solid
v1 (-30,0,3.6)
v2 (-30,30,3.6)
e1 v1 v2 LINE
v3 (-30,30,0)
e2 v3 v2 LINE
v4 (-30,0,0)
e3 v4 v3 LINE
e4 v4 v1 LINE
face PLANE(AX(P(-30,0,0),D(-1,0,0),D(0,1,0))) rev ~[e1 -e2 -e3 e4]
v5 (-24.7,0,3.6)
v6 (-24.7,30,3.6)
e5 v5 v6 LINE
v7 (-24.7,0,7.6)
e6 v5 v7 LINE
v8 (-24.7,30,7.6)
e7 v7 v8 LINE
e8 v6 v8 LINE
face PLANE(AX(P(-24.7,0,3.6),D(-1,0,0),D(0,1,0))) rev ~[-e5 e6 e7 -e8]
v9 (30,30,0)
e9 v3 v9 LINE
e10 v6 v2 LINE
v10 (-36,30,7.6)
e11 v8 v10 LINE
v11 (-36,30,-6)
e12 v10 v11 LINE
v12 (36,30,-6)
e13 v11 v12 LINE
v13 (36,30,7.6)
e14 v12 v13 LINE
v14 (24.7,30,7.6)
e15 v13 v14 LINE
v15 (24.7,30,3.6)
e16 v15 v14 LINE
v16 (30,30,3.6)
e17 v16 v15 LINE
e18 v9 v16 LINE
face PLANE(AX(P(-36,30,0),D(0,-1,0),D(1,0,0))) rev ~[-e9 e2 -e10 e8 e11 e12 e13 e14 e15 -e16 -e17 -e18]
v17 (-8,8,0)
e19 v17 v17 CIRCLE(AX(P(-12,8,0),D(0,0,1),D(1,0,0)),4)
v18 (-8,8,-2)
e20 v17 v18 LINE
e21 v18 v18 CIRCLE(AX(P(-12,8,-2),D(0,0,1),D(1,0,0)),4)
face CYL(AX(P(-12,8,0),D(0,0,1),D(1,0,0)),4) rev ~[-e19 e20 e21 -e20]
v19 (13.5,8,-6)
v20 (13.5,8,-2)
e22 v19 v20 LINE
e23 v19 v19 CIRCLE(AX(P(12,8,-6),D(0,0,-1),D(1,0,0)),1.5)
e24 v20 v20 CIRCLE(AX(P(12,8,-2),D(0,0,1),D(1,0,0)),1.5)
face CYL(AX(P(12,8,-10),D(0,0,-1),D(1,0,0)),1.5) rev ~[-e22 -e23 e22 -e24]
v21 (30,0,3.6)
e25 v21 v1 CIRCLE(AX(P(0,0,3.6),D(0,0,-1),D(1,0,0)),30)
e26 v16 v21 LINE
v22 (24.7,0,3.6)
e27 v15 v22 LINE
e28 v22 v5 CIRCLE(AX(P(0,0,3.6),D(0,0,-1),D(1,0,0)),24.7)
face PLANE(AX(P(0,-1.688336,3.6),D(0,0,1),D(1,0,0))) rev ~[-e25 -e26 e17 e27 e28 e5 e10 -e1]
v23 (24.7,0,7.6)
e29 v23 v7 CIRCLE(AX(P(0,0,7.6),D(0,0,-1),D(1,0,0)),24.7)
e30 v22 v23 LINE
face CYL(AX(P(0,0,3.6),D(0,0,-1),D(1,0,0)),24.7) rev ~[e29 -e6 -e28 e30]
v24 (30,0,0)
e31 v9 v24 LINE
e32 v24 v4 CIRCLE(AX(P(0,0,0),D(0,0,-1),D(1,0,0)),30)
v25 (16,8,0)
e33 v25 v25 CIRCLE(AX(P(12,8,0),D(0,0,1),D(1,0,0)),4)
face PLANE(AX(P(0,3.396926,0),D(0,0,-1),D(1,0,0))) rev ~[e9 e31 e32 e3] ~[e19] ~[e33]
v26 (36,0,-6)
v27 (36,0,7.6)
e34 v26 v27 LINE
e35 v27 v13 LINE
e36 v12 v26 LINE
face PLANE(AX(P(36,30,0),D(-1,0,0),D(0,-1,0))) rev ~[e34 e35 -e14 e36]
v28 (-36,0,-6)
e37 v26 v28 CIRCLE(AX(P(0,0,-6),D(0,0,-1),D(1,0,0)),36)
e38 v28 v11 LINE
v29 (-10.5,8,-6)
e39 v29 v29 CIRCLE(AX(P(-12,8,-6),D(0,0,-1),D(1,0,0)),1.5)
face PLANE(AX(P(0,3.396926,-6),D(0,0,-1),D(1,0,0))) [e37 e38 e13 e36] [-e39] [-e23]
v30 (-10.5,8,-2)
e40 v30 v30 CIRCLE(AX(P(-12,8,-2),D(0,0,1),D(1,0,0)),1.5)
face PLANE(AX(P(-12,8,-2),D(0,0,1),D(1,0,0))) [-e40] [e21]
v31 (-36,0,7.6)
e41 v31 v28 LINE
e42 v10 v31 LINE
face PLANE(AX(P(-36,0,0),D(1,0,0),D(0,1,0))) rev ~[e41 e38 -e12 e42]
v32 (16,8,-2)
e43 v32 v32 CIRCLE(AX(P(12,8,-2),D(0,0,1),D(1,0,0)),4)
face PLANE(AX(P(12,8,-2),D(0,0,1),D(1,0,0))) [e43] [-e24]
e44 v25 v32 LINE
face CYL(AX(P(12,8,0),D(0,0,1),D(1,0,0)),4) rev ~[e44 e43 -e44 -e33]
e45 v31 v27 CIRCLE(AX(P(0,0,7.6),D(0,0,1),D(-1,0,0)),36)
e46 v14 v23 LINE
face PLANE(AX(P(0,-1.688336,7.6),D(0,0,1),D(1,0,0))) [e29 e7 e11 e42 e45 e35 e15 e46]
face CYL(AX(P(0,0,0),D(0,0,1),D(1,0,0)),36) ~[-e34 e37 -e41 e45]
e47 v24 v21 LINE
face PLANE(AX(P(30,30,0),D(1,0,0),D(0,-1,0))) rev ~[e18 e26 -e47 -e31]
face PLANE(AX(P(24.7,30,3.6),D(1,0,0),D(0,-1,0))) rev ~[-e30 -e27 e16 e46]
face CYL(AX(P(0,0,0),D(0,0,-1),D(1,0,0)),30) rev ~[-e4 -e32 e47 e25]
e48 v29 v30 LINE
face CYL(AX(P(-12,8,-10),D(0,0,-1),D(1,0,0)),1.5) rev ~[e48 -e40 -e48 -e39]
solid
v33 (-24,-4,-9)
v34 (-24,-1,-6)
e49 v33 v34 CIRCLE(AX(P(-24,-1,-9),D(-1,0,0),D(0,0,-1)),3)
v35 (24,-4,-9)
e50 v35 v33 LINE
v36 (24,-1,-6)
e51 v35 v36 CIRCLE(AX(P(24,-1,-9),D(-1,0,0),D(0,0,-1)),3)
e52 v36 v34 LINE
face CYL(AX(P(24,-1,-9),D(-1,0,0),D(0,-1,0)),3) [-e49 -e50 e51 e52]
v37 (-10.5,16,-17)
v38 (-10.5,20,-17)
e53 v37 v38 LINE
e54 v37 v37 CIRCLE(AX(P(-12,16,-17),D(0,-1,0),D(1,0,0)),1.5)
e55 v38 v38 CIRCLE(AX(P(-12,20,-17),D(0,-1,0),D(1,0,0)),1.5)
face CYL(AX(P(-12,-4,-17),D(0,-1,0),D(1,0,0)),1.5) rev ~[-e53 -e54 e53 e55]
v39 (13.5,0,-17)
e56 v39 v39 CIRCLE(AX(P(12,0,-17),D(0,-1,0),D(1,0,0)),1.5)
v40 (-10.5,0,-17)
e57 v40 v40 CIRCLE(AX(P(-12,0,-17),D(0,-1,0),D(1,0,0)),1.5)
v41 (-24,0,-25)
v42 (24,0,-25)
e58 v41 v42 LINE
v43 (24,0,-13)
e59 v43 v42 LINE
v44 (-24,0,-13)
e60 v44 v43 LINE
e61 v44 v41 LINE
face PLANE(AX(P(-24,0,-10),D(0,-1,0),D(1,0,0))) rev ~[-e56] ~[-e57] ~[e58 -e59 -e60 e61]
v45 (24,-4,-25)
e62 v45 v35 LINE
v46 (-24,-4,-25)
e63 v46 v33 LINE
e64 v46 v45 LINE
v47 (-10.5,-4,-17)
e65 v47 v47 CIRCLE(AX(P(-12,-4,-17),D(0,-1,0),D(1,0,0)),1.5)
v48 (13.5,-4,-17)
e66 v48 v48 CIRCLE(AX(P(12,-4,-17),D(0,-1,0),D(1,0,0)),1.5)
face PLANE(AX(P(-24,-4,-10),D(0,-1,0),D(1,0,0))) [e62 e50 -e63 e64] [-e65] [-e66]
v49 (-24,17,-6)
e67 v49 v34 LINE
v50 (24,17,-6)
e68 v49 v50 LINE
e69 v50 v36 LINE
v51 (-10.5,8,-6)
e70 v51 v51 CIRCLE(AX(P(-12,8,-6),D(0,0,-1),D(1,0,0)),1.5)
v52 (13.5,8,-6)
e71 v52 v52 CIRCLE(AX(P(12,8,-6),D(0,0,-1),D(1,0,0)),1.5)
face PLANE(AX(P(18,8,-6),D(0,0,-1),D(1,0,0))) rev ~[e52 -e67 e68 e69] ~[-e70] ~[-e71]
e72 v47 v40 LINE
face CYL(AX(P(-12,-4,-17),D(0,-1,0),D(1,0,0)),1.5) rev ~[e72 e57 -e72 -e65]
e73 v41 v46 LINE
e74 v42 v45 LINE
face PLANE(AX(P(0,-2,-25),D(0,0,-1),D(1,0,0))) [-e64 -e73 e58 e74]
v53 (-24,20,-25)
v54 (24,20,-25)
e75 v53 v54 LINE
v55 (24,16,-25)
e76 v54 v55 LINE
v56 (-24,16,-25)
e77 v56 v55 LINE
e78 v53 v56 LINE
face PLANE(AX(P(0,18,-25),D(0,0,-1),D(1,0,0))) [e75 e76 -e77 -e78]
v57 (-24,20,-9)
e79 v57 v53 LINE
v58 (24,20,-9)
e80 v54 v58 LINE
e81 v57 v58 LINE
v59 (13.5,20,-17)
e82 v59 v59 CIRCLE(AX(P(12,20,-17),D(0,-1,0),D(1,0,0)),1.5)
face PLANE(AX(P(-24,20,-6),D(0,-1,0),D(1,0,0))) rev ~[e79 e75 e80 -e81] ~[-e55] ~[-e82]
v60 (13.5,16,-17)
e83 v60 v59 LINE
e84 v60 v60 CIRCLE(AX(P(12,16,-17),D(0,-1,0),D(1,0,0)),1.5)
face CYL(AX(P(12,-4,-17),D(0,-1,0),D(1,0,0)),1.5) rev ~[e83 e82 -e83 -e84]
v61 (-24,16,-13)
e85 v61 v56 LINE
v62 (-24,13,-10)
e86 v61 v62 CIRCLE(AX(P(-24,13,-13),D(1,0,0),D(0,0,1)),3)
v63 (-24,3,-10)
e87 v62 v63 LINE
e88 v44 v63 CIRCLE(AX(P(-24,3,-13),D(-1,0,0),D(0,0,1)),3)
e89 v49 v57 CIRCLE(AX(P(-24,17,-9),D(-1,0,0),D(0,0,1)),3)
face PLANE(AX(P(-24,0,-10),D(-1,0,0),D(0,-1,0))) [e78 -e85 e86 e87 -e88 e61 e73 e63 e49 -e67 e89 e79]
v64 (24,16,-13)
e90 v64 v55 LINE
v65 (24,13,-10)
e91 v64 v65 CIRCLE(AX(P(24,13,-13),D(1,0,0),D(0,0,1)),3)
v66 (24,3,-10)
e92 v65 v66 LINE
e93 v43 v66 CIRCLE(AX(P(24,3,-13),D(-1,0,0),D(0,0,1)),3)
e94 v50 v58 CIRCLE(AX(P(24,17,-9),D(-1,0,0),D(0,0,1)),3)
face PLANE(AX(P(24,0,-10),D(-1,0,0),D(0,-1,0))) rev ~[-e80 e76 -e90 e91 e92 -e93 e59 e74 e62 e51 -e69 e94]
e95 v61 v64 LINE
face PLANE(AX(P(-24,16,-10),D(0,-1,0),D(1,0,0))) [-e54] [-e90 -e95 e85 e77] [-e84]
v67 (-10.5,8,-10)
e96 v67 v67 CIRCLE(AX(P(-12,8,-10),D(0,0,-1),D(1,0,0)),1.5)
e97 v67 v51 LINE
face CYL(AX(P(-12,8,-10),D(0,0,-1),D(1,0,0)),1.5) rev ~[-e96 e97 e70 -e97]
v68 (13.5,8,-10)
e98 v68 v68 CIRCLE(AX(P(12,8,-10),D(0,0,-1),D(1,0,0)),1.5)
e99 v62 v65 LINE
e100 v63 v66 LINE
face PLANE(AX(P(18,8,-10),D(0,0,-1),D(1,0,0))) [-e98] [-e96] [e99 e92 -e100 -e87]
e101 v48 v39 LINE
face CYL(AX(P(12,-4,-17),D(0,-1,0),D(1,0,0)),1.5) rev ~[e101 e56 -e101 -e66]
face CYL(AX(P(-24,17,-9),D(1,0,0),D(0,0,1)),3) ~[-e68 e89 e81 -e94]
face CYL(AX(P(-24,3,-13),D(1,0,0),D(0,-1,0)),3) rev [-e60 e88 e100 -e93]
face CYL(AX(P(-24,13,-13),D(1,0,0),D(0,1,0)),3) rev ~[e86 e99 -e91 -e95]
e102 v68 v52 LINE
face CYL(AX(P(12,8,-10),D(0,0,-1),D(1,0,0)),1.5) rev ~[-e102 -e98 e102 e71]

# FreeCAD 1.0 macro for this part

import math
import FreeCAD as App
import Part
import Sketcher
from FreeCAD import Vector


def edges_at(feature, points):
    """Names of the edges that pass closest to the given points."""
    edges = feature.Shape.Edges
    near = lambda p: min(range(len(edges)), key=lambda i: edges[i].distToShape(Part.Vertex(*p))[0])
    return sorted({f"Edge{near(p) + 1}" for p in points})

doc = App.newDocument("Part")
body = doc.addObject("PartDesign::Body", "Body")

sketch1 = body.newObject("Sketcher::SketchObject", "Sketch")
sketch1.AttachmentSupport = (doc.getObject("XY_Plane"), [""])
sketch1.MapMode = "FlatFace"
sketch1.addGeometry([
    Part.ArcOfCircle(Part.Circle(Vector(0, 0, 0), Vector(0, 0, 1), 30), math.radians(180), math.radians(360)),
    Part.LineSegment(Vector(-30, 0, 0), Vector(-30, 30, 0)),
    Part.LineSegment(Vector(-30, 30, 0), Vector(-36, 30, 0)),
    Part.LineSegment(Vector(-36, 30, 0), Vector(-36, 0, 0)),
    Part.ArcOfCircle(Part.Circle(Vector(0, 0, 0), Vector(0, 0, 1), 36), math.radians(180), math.radians(360)),
    Part.LineSegment(Vector(36, 0, 0), Vector(36, 30, 0)),
    Part.LineSegment(Vector(36, 30, 0), Vector(30, 30, 0)),
    Part.LineSegment(Vector(30, 30, 0), Vector(30, 0, 0)),
], False)
sketch1.addConstraint([
    Sketcher.Constraint("Tangent", 0, 1, 1, 1),
    Sketcher.Constraint("Coincident", 1, 2, 2, 1),
    Sketcher.Constraint("Coincident", 2, 2, 3, 1),
    Sketcher.Constraint("Tangent", 3, 2, 4, 1),
    Sketcher.Constraint("Tangent", 4, 2, 5, 1),
    Sketcher.Constraint("Coincident", 5, 2, 6, 1),
    Sketcher.Constraint("Coincident", 6, 2, 7, 1),
    Sketcher.Constraint("Tangent", 7, 2, 0, 2),
    Sketcher.Constraint("Vertical", 1),
    Sketcher.Constraint("Horizontal", 2),
    Sketcher.Constraint("Vertical", 3),
    Sketcher.Constraint("Vertical", 5),
    Sketcher.Constraint("Horizontal", 6),
    Sketcher.Constraint("Vertical", 7),
    Sketcher.Constraint("Coincident", 0, 3, -1, 1),
    Sketcher.Constraint("Coincident", 4, 3, -1, 1),
    Sketcher.Constraint("Horizontal", 2, 2, 5, 2),
    Sketcher.Constraint("Radius", 0, 30.0),
    Sketcher.Constraint("Radius", 4, 36.0),
    Sketcher.Constraint("DistanceY", 1, 1, 1, 2, 30.0),
])
pad1 = body.newObject("PartDesign::Pad", "Pad")
pad1.Profile = sketch1
pad1.Length = 3.6

sketch2 = body.newObject("Sketcher::SketchObject", "Sketch001")
sketch2.AttachmentSupport = (doc.getObject("XY_Plane"), [""])
sketch2.MapMode = "FlatFace"
sketch2.AttachmentOffset = App.Placement(Vector(0, 0, 3.6), App.Rotation())
sketch2.addGeometry([
    Part.LineSegment(Vector(25, 30, 0), Vector(25, 0, 0)),
    Part.ArcOfCircle(Part.Circle(Vector(0, 0, 0), Vector(0, 0, 1), 25), math.radians(180), math.radians(360)),
    Part.LineSegment(Vector(-25, 0, 0), Vector(-25, 30, 0)),
    Part.LineSegment(Vector(-25, 30, 0), Vector(-36, 30, 0)),
    Part.LineSegment(Vector(-36, 30, 0), Vector(-36, 0, 0)),
    Part.ArcOfCircle(Part.Circle(Vector(0, 0, 0), Vector(0, 0, 1), 36), math.radians(180), math.radians(360)),
    Part.LineSegment(Vector(36, 0, 0), Vector(36, 30, 0)),
    Part.LineSegment(Vector(36, 30, 0), Vector(25, 30, 0)),
], False)
sketch2.addConstraint([
    Sketcher.Constraint("Tangent", 0, 2, 1, 2),
    Sketcher.Constraint("Tangent", 1, 1, 2, 1),
    Sketcher.Constraint("Coincident", 2, 2, 3, 1),
    Sketcher.Constraint("Coincident", 3, 2, 4, 1),
    Sketcher.Constraint("Tangent", 4, 2, 5, 1),
    Sketcher.Constraint("Tangent", 5, 2, 6, 1),
    Sketcher.Constraint("Coincident", 6, 2, 7, 1),
    Sketcher.Constraint("Coincident", 7, 2, 0, 1),
    Sketcher.Constraint("Vertical", 0),
    Sketcher.Constraint("Vertical", 2),
    Sketcher.Constraint("Horizontal", 3),
    Sketcher.Constraint("Vertical", 4),
    Sketcher.Constraint("Vertical", 6),
    Sketcher.Constraint("Horizontal", 7),
    Sketcher.Constraint("Coincident", 1, 3, -1, 1),
    Sketcher.Constraint("Coincident", 5, 3, -1, 1),
    Sketcher.Constraint("Horizontal", 3, 2, 6, 2),
    Sketcher.Constraint("Radius", 5, 36.0),
    Sketcher.Constraint("Radius", 1, 24.7),
    Sketcher.Constraint("DistanceY", 0, 2, 0, 1, 30.0),
])
pad2 = body.newObject("PartDesign::Pad", "Pad001")
pad2.Profile = sketch2
pad2.Length = 4

sketch3 = body.newObject("Sketcher::SketchObject", "Sketch002")
sketch3.AttachmentSupport = (doc.getObject("XY_Plane"), [""])
sketch3.MapMode = "FlatFace"
sketch3.addGeometry([
    Part.ArcOfCircle(Part.Circle(Vector(0, 0, 0), Vector(0, 0, 1), 36), math.radians(180), math.radians(360)),
    Part.LineSegment(Vector(-36, 0, 0), Vector(-36, 30, 0)),
    Part.LineSegment(Vector(-36, 30, 0), Vector(36, 30, 0)),
    Part.LineSegment(Vector(36, 30, 0), Vector(36, 0, 0)),
], False)
sketch3.addConstraint([
    Sketcher.Constraint("Tangent", 0, 1, 1, 1),
    Sketcher.Constraint("Coincident", 1, 2, 2, 1),
    Sketcher.Constraint("Coincident", 2, 2, 3, 1),
    Sketcher.Constraint("Tangent", 3, 2, 0, 2),
    Sketcher.Constraint("Vertical", 1),
    Sketcher.Constraint("Horizontal", 2),
    Sketcher.Constraint("Vertical", 3),
    Sketcher.Constraint("Coincident", 0, 3, -1, 1),
    Sketcher.Constraint("Radius", 0, 36.0),
    Sketcher.Constraint("DistanceY", 1, 1, 1, 2, 30.0),
])
pad3 = body.newObject("PartDesign::Pad", "Pad002")
pad3.Profile = sketch3
pad3.Length = 6
pad3.Reversed = True
body2 = doc.addObject("PartDesign::Body", "Body001")

sketch4 = body2.newObject("Sketcher::SketchObject", "Sketch003")
sketch4.AttachmentSupport = (doc.getObject("XY_Plane001"), [""])
sketch4.MapMode = "FlatFace"
sketch4.AttachmentOffset = App.Placement(Vector(0, 0, -6), App.Rotation())
sketch4.addGeometry([
    Part.LineSegment(Vector(24, 20, 0), Vector(24, -4, 0)),
    Part.LineSegment(Vector(24, -4, 0), Vector(-24, -4, 0)),
    Part.LineSegment(Vector(-24, -4, 0), Vector(-24, 20, 0)),
    Part.LineSegment(Vector(-24, 20, 0), Vector(24, 20, 0)),
], False)
sketch4.addConstraint([
    Sketcher.Constraint("Coincident", 0, 2, 1, 1),
    Sketcher.Constraint("Coincident", 1, 2, 2, 1),
    Sketcher.Constraint("Coincident", 2, 2, 3, 1),
    Sketcher.Constraint("Coincident", 3, 2, 0, 1),
    Sketcher.Constraint("Vertical", 0),
    Sketcher.Constraint("Horizontal", 1),
    Sketcher.Constraint("Vertical", 2),
    Sketcher.Constraint("Horizontal", 3),
    Sketcher.Constraint("DistanceX", 1, 2, 1, 1, 48.0),
    Sketcher.Constraint("DistanceY", 0, 2, 0, 1, 24.0),
    Sketcher.Constraint("DistanceX", -1, 1, 0, 2, 24.0),
    Sketcher.Constraint("DistanceY", 0, 2, -1, 1, 4.0),
])
pad4 = body2.newObject("PartDesign::Pad", "Pad003")
pad4.Profile = sketch4
pad4.Length = 4
pad4.Reversed = True

sketch5 = body2.newObject("Sketcher::SketchObject", "Sketch004")
sketch5.AttachmentSupport = (doc.getObject("XY_Plane001"), [""])
sketch5.MapMode = "FlatFace"
sketch5.AttachmentOffset = App.Placement(Vector(0, 0, -10), App.Rotation())
sketch5.addGeometry([
    Part.LineSegment(Vector(-24, -4, 0), Vector(-24, 0, 0)),
    Part.LineSegment(Vector(-24, 0, 0), Vector(24, 0, 0)),
    Part.LineSegment(Vector(24, 0, 0), Vector(24, -4, 0)),
    Part.LineSegment(Vector(24, -4, 0), Vector(-24, -4, 0)),
    Part.LineSegment(Vector(-24, 16, 0), Vector(-24, 20, 0)),
    Part.LineSegment(Vector(-24, 20, 0), Vector(24, 20, 0)),
    Part.LineSegment(Vector(24, 20, 0), Vector(24, 16, 0)),
    Part.LineSegment(Vector(24, 16, 0), Vector(-24, 16, 0)),
], False)
sketch5.addConstraint([
    Sketcher.Constraint("Coincident", 0, 2, 1, 1),
    Sketcher.Constraint("Coincident", 1, 2, 2, 1),
    Sketcher.Constraint("Coincident", 2, 2, 3, 1),
    Sketcher.Constraint("Coincident", 3, 2, 0, 1),
    Sketcher.Constraint("Coincident", 4, 2, 5, 1),
    Sketcher.Constraint("Coincident", 5, 2, 6, 1),
    Sketcher.Constraint("Coincident", 6, 2, 7, 1),
    Sketcher.Constraint("Coincident", 7, 2, 4, 1),
    Sketcher.Constraint("Vertical", 0),
    Sketcher.Constraint("Horizontal", 1),
    Sketcher.Constraint("Vertical", 2),
    Sketcher.Constraint("Horizontal", 3),
    Sketcher.Constraint("Vertical", 4),
    Sketcher.Constraint("Horizontal", 5),
    Sketcher.Constraint("Vertical", 6),
    Sketcher.Constraint("Horizontal", 7),
    Sketcher.Constraint("Symmetric", 0, 2, 1, 2, -1, 1),
    Sketcher.Constraint("Vertical", 3, 2, 4, 2),
    Sketcher.Constraint("Vertical", 2, 2, 5, 2),
    Sketcher.Constraint("Equal", 2, 4),
    Sketcher.Constraint("DistanceX", 1, 1, 1, 2, 48.0),
    Sketcher.Constraint("DistanceY", 0, 1, 0, 2, 4.0),
    Sketcher.Constraint("DistanceY", -1, 1, 4, 2, 20.0),
])
pad5 = body2.newObject("PartDesign::Pad", "Pad004")
pad5.Profile = sketch5
pad5.Length = 15
pad5.Reversed = True
body3 = doc.addObject("PartDesign::Body", "Body002")
body3.AllowCompound = True

sketch6 = body3.newObject("Sketcher::SketchObject", "Sketch005")
sketch6.AttachmentSupport = (doc.getObject("XY_Plane002"), [""])
sketch6.MapMode = "FlatFace"
sketch6.AttachmentOffset = App.Placement(Vector(0, 0, -10), App.Rotation())
sketch6.addGeometry([
    Part.Circle(Vector(12, 8, 0), Vector(0, 0, 1), 1.5),
    Part.Circle(Vector(-12, 8, 0), Vector(0, 0, 1), 1.5),
], False)
sketch6.addConstraint([
    Sketcher.Constraint("Equal", 0, 1),
    Sketcher.Constraint("Symmetric", 0, 3, 1, 3, -2),
    Sketcher.Constraint("Diameter", 0, 3.0),
    Sketcher.Constraint("DistanceX", -1, 1, 0, 3, 12.0),
    Sketcher.Constraint("DistanceY", -1, 1, 0, 3, 8.0),
])
pad6 = body3.newObject("PartDesign::Pad", "Pad005")
pad6.Profile = sketch6
pad6.Length = 10
doc.recompute()

body4 = doc.addObject("PartDesign::Body", "Body003")
body4.BaseFeature = body3
boolean = body.newObject("PartDesign::Boolean", "Boolean")
boolean.Type = "Cut"
boolean.addObjects([body4])
doc.recompute()

sketch7 = body.newObject("Sketcher::SketchObject", "Sketch006")
sketch7.AttachmentSupport = (doc.getObject("XY_Plane"), [""])
sketch7.MapMode = "FlatFace"
sketch7.addGeometry([
    Part.Circle(Vector(-12, 8, 0), Vector(0, 0, 1), 4),
    Part.Circle(Vector(-12, 8, 0), Vector(0, 0, 1), 1.5),
    Part.Circle(Vector(12, 8, 0), Vector(0, 0, 1), 4),
    Part.Circle(Vector(12, 8, 0), Vector(0, 0, 1), 1.5),
], False)
sketch7.addConstraint([
    Sketcher.Constraint("Coincident", 1, 3, 0, 3),
    Sketcher.Constraint("Coincident", 3, 3, 2, 3),
    Sketcher.Constraint("Equal", 0, 2),
    Sketcher.Constraint("Equal", 1, 3),
    Sketcher.Constraint("Symmetric", 0, 3, 2, 3, -2),
    Sketcher.Constraint("Diameter", 0, 8.0),
    Sketcher.Constraint("Diameter", 1, 3.0),
    Sketcher.Constraint("DistanceX", 0, 3, -1, 1, 12.0),
    Sketcher.Constraint("DistanceY", -1, 1, 0, 3, 8.0),
])
pocket1 = body.newObject("PartDesign::Pocket", "Pocket")
pocket1.Profile = sketch7
pocket1.Length = 2
doc.recompute()

boolean2 = body2.newObject("PartDesign::Boolean", "Boolean001")
boolean2.Type = "Cut"
boolean2.addObjects([body3])
doc.recompute()

fillet = body2.newObject("PartDesign::Fillet", "Fillet")
fillet.Base = (boolean2, edges_at(boolean2, [
    (0, 0, -10),
    (0, 16, -10),
    (0, -4, -6),
    (0, 20, -6),
]))
fillet.Radius = 3

sketch8 = body2.newObject("Sketcher::SketchObject", "Sketch007")
sketch8.AttachmentSupport = (doc.getObject("XZ_Plane001"), [""])
sketch8.MapMode = "FlatFace"
sketch8.AttachmentOffset = App.Placement(Vector(0, 0, 4), App.Rotation())
sketch8.addGeometry([
    Part.Circle(Vector(-12, -17, 0), Vector(0, 0, 1), 1.5),
    Part.Circle(Vector(12, -17, 0), Vector(0, 0, 1), 1.5),
], False)
sketch8.addConstraint([
    Sketcher.Constraint("Equal", 0, 1),
    Sketcher.Constraint("Symmetric", 0, 3, 1, 3, -2),
    Sketcher.Constraint("Diameter", 0, 3.0),
    Sketcher.Constraint("DistanceX", 0, 3, -1, 1, 12.0),
    Sketcher.Constraint("DistanceY", 0, 3, -1, 1, 17.0),
])
pocket2 = body2.newObject("PartDesign::Pocket", "Pocket001")
pocket2.Profile = sketch8
pocket2.Type = "ThroughAll"

doc.recompute()
